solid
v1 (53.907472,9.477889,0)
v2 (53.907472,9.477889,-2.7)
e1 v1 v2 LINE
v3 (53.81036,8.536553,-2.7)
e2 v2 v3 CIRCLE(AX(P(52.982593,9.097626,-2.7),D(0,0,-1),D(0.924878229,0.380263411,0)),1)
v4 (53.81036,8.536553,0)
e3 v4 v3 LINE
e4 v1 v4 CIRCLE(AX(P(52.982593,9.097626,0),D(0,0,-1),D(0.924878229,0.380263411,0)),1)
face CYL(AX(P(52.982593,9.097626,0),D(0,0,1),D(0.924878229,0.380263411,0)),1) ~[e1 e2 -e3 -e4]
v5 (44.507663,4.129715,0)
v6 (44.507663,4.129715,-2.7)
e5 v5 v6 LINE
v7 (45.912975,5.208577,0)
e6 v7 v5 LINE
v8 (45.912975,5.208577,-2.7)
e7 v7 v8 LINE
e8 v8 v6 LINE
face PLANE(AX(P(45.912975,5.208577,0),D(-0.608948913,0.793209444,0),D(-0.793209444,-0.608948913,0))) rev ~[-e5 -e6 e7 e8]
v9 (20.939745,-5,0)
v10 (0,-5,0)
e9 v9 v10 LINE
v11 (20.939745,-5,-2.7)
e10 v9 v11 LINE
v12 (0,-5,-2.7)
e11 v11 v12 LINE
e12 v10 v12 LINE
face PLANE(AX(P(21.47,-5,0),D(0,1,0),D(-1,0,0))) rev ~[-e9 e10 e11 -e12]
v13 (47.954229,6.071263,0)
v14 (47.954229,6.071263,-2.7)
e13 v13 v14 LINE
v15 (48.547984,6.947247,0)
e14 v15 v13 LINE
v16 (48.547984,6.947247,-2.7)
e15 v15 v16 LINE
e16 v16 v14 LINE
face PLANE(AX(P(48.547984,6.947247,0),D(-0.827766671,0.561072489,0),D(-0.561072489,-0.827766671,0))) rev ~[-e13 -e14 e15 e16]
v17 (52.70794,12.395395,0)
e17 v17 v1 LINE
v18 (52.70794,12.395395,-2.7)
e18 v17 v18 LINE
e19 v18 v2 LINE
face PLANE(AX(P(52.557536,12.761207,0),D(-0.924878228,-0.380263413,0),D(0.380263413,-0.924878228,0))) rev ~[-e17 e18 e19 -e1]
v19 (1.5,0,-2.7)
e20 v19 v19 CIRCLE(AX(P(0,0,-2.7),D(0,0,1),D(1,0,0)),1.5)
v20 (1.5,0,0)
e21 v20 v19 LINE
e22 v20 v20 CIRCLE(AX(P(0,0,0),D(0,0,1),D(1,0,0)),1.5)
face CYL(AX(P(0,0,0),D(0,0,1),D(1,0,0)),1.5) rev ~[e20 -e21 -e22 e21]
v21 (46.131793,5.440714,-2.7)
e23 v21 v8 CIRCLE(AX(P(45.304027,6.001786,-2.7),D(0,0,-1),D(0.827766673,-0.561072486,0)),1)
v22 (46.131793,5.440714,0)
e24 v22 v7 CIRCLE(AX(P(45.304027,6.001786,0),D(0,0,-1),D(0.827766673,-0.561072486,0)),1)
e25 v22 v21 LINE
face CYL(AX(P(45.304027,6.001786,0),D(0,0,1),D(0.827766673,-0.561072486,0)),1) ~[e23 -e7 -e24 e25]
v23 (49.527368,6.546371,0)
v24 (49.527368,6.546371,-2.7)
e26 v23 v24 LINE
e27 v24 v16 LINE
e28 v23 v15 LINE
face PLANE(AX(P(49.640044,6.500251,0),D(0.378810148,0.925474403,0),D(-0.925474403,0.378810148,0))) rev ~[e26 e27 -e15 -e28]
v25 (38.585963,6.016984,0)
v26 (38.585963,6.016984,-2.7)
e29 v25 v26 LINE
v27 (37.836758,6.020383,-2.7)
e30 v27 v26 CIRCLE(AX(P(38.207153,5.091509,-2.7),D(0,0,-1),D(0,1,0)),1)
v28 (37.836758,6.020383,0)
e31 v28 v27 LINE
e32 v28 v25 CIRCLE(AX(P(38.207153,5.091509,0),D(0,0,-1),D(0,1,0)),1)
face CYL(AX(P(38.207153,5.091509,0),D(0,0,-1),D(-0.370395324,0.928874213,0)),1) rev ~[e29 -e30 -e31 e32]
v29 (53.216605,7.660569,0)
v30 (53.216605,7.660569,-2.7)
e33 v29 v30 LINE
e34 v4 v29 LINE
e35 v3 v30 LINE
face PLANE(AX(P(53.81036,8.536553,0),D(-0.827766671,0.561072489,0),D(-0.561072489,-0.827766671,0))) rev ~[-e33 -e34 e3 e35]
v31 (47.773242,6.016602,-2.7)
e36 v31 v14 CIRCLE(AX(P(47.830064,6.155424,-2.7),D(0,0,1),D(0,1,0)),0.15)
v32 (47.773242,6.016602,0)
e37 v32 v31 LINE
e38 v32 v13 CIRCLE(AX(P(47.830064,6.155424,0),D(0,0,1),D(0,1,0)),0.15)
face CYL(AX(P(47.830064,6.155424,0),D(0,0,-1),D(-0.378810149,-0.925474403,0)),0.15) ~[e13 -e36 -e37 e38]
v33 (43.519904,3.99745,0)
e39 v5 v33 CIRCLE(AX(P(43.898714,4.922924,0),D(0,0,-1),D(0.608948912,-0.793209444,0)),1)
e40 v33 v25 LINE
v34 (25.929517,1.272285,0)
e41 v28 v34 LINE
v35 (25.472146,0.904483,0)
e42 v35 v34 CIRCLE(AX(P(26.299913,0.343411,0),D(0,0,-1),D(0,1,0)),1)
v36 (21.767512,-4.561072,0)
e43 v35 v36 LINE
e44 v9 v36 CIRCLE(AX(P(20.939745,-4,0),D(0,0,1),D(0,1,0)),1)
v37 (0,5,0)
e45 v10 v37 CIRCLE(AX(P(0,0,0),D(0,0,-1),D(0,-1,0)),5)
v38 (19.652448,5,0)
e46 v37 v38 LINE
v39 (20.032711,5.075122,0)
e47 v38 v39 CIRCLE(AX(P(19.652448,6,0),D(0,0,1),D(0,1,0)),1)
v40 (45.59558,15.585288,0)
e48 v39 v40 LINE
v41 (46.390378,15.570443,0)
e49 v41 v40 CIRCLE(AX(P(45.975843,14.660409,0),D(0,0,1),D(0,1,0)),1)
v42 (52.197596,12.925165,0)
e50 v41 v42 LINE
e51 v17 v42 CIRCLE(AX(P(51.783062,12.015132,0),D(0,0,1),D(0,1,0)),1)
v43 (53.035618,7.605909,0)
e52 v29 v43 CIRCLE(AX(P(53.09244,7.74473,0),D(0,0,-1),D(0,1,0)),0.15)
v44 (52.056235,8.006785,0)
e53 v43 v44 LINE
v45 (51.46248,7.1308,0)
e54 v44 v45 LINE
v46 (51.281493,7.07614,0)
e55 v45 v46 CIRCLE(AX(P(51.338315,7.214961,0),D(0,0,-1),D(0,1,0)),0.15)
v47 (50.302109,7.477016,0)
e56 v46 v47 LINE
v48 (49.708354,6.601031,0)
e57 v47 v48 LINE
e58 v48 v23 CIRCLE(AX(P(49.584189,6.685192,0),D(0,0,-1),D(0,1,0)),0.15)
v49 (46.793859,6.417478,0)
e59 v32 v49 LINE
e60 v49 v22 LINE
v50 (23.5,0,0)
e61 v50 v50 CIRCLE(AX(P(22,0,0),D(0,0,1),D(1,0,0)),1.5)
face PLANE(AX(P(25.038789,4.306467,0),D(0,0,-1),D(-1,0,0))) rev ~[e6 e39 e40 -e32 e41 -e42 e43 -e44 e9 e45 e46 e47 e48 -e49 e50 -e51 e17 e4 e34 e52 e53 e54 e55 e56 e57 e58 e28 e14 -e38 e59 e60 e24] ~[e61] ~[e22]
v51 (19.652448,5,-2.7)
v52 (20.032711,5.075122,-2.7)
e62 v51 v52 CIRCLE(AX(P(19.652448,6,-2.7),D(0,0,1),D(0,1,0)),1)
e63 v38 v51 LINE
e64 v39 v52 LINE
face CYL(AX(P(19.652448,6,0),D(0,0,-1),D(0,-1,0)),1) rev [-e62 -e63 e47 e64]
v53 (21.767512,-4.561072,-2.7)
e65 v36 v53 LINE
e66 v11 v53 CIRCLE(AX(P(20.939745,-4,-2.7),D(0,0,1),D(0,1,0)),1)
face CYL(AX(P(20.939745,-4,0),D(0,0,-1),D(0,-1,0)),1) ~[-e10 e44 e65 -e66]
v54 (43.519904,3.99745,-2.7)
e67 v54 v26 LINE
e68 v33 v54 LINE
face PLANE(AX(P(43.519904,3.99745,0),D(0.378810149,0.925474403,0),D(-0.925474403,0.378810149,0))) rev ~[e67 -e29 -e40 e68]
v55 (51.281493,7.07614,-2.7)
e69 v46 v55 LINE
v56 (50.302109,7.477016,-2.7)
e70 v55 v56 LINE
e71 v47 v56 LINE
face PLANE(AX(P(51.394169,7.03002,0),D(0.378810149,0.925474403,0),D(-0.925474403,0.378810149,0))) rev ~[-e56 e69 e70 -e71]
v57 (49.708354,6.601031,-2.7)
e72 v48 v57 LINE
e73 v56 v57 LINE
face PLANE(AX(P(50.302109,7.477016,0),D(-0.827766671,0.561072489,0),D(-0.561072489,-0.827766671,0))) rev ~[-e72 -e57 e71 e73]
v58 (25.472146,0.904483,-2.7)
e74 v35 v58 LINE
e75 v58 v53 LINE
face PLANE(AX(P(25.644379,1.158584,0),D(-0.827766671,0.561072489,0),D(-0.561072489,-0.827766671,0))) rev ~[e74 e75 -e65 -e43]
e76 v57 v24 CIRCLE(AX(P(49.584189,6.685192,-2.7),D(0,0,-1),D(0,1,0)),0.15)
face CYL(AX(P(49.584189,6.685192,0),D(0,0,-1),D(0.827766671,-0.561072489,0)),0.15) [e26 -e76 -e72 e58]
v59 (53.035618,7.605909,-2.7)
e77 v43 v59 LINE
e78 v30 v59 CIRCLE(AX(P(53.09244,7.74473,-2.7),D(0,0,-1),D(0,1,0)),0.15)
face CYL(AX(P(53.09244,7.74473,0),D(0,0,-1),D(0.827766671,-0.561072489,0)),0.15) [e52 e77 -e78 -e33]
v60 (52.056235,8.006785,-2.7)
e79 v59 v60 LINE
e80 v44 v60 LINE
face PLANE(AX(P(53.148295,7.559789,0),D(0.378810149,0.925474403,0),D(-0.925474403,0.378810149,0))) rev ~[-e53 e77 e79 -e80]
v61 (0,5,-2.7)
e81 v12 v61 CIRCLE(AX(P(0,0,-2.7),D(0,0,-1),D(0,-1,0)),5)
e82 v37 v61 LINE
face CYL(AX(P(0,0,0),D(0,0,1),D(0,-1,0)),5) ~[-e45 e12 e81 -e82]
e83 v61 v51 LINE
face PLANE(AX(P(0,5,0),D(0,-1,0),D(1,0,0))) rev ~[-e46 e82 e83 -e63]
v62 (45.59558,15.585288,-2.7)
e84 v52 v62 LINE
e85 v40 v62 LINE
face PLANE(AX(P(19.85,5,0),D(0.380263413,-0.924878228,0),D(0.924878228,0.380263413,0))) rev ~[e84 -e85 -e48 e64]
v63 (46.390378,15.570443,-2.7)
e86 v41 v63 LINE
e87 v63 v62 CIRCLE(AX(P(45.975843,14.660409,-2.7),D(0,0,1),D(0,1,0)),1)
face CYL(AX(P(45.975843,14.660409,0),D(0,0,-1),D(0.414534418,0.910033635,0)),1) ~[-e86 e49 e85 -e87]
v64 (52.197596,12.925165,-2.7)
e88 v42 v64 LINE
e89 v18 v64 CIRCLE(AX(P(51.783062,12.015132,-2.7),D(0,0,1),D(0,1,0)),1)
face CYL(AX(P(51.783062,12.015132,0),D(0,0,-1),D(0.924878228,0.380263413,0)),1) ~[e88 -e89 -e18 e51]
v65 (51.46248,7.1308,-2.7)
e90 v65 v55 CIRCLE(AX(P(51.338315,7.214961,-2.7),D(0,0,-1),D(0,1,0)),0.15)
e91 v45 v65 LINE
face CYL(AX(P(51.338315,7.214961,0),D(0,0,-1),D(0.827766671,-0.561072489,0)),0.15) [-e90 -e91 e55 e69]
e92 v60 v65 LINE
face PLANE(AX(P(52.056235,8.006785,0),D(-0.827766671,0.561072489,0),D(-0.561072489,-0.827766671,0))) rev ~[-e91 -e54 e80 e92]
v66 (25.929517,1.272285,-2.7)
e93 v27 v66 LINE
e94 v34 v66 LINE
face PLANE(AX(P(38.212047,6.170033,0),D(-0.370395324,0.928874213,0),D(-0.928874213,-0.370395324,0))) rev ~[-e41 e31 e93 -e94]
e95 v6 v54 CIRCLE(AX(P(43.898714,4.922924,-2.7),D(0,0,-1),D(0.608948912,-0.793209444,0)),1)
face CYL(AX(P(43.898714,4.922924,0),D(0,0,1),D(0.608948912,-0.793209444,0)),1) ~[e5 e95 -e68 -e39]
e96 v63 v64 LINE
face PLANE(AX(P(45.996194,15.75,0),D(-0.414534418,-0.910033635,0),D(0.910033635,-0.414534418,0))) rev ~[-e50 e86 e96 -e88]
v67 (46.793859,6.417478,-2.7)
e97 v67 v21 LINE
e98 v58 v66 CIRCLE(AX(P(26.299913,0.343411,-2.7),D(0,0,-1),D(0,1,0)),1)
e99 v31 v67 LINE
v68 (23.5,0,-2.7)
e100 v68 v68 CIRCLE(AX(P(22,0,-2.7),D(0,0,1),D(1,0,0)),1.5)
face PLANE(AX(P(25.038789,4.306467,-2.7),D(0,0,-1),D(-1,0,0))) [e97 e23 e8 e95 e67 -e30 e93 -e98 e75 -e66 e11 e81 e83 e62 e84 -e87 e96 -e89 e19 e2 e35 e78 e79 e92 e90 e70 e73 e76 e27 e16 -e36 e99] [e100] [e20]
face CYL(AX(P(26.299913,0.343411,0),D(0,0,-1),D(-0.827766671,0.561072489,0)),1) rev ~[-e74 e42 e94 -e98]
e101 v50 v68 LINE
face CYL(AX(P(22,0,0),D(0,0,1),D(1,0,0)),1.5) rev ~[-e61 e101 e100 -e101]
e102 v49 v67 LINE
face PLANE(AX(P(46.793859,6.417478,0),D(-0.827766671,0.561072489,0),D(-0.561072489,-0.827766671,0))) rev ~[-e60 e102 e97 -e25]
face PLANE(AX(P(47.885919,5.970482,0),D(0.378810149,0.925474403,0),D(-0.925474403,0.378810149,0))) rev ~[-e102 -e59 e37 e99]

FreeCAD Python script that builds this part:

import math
import FreeCAD as App
import Part
import Sketcher

V = App.Vector
Q = App.Units.Quantity


def edges_at(feature, points):
    """Names of the edges that pass closest to the given points."""
    edges = feature.Shape.Edges
    near = lambda p: min(range(len(edges)), key=lambda i: edges[i].distToShape(Part.Vertex(*p))[0])
    return sorted({f"Edge{near(p) + 1}" for p in points})

doc = App.newDocument("Part")
params = doc.addObject("Spreadsheet::Sheet", "Params")
for row, (alias, value) in enumerate([
    ("sketch1_diameter", "3 mm"),
    ("sketch1_radius", "5 mm"),
    ("sketch1_radius2", "1 mm"),
    ("sketch1_width", "19.85 mm"),
    ("sketch1_width2", "21.47 mm"),
    ("pad1_length", "2.7 mm"),
    ("fillet_radius", "0.15 mm"),
    ("fillet2_radius", "1 mm"),
    ("fillet3_radius", "1 mm"),
    ("fillet4_radius", "1 mm"),
], start=1):
    params.set(f"A{row}", alias)
    params.set(f"B{row}", "=" + value)
    params.setAlias(f"B{row}", alias)

body = doc.addObject("PartDesign::Body", "Body")

# Sketch on XY plane
sketch1 = doc.addObject("Sketcher::SketchObject", "Sketch")
body.addObject(sketch1)
sketch1.AttachmentSupport = (doc.XY_Plane, [""])
sketch1.MapMode = "FlatFace"
sketch1.addGeometry([
    Part.LineSegment(V(19.85, 5, 0), V(0, 5, 0)),  # 0
    Part.ArcOfCircle(Part.Circle(V(0, 0, 0), V(0, 0, 1), 5), math.radians(90), math.radians(270)),  # 1
    Part.LineSegment(V(0, -5, 0), V(21.47, -5, 0)),  # 2
    Part.LineSegment(V(21.47, -5, 0), V(25.64, 1.16, 0)),  # 3
    Part.LineSegment(V(25.64, 1.16, 0), V(38.21, 6.17, 0)),  # 4
    Part.LineSegment(V(38.21, 6.17, 0), V(43.52, 4, 0)),  # 5
    Part.ArcOfCircle(Part.Circle(V(43.9, 4.92, 0), V(0, 0, 1), 1), math.radians(-112), math.radians(-52)),  # 6
    Part.LineSegment(V(44.51, 4.13, 0), V(45.91, 5.21, 0)),  # 7
    Part.ArcOfCircle(Part.Circle(V(45.3, 6, 0), V(0, 0, 1), 1), math.radians(-52.49), math.radians(-34.13)),  # 8
    Part.LineSegment(V(46.13, 5.44, 0), V(46.79, 6.42, 0)),  # 9
    Part.LineSegment(V(46.79, 6.42, 0), V(47.89, 5.97, 0)),  # 10
    Part.LineSegment(V(47.89, 5.97, 0), V(48.55, 6.95, 0)),  # 11
    Part.LineSegment(V(48.55, 6.95, 0), V(49.64, 6.5, 0)),  # 12
    Part.LineSegment(V(49.64, 6.5, 0), V(50.3, 7.48, 0)),  # 13
    Part.LineSegment(V(50.3, 7.48, 0), V(51.39, 7.03, 0)),  # 14
    Part.LineSegment(V(51.39, 7.03, 0), V(52.06, 8.01, 0)),  # 15
    Part.LineSegment(V(52.06, 8.01, 0), V(53.15, 7.56, 0)),  # 16
    Part.LineSegment(V(53.15, 7.56, 0), V(53.81, 8.54, 0)),  # 17
    Part.ArcOfCircle(Part.Circle(V(52.98, 9.1, 0), V(0, 0, 1), 1), math.radians(-34), math.radians(22)),  # 18
    Part.LineSegment(V(53.91, 9.48, 0), V(52.56, 12.76, 0)),  # 19
    Part.LineSegment(V(52.56, 12.76, 0), V(46, 15.75, 0)),  # 20
    Part.LineSegment(V(46, 15.75, 0), V(19.85, 5, 0)),  # 21
    Part.Circle(V(22, 0, 0), V(0, 0, 1), 1.5),  # 22
    Part.Circle(V(0, 0, 0), V(0, 0, 1), 1.5),  # 23
], False)
sketch1.addConstraint([
    Sketcher.Constraint("Tangent", 0, 2, 1, 1),
    Sketcher.Constraint("Tangent", 1, 2, 2, 1),
    Sketcher.Constraint("Coincident", 2, 2, 3, 1),
    Sketcher.Constraint("Coincident", 3, 2, 4, 1),
    Sketcher.Constraint("Coincident", 4, 2, 5, 1),
    Sketcher.Constraint("Tangent", 5, 2, 6, 1),
    Sketcher.Constraint("Tangent", 6, 2, 7, 1),
    Sketcher.Constraint("Tangent", 7, 2, 8, 1),
    Sketcher.Constraint("Tangent", 8, 2, 9, 1),
    Sketcher.Constraint("Coincident", 9, 2, 10, 1),
    Sketcher.Constraint("Coincident", 10, 2, 11, 1),
    Sketcher.Constraint("Coincident", 11, 2, 12, 1),
    Sketcher.Constraint("Coincident", 12, 2, 13, 1),
    Sketcher.Constraint("Coincident", 13, 2, 14, 1),
    Sketcher.Constraint("Coincident", 14, 2, 15, 1),
    Sketcher.Constraint("Coincident", 15, 2, 16, 1),
    Sketcher.Constraint("Coincident", 16, 2, 17, 1),
    Sketcher.Constraint("Tangent", 17, 2, 18, 1),
    Sketcher.Constraint("Tangent", 18, 2, 19, 1),
    Sketcher.Constraint("Coincident", 19, 2, 20, 1),
    Sketcher.Constraint("Coincident", 20, 2, 21, 1),
    Sketcher.Constraint("Coincident", 21, 2, 0, 1),
    Sketcher.Constraint("Horizontal", 0),
    Sketcher.Constraint("Horizontal", 2),
    Sketcher.Constraint("Coincident", 1, 3, -1, 1),
    Sketcher.Constraint("Coincident", 23, 3, -1, 1),
    Sketcher.Constraint("Equal", 6, 8),
    Sketcher.Constraint("Equal", 8, 18),
    Sketcher.Constraint("Equal", 22, 23),
    Sketcher.Constraint("PointOnObject", 22, 3, -1),
    Sketcher.Constraint("Parallel", 3, 9),
    Sketcher.Constraint("Parallel", 5, 10),
    Sketcher.Constraint("Parallel", 9, 11),
    Sketcher.Constraint("Parallel", 10, 12),
    Sketcher.Constraint("Parallel", 11, 13),
    Sketcher.Constraint("Parallel", 12, 14),
    Sketcher.Constraint("Parallel", 13, 15),
    Sketcher.Constraint("Parallel", 14, 16),
    Sketcher.Constraint("Parallel", 15, 17),
    Sketcher.Constraint("Perpendicular", 19, 21),
    Sketcher.Constraint("Equal", 9, 10),
    Sketcher.Constraint("Equal", 10, 11),
    Sketcher.Constraint("Equal", 11, 12),
    Sketcher.Constraint("Equal", 12, 13),
    Sketcher.Constraint("Equal", 13, 14),
    Sketcher.Constraint("Equal", 14, 15),
    Sketcher.Constraint("Equal", 15, 16),
    Sketcher.Constraint("Equal", 16, 17),
    Sketcher.Constraint("Diameter", 22, Q("3 mm")),
    Sketcher.Constraint("Radius", 1, Q("5 mm")),
    Sketcher.Constraint("Radius", 6, Q("1 mm")),
    Sketcher.Constraint("DistanceX", -1, 1, 22, 3, Q("22 mm")),
    Sketcher.Constraint("DistanceX", 0, 2, 0, 1, Q("19.85 mm")),
    Sketcher.Constraint("DistanceX", 2, 1, 2, 2, Q("21.47 mm")),
    Sketcher.Constraint("Angle", 3, Q("55.87 deg")),
    Sketcher.Constraint("Angle", 4, Q("21.74 deg")),
    Sketcher.Constraint("Angle", 5, Q("-22.26 deg")),
    Sketcher.Constraint("Angle", 19, Q("112.35 deg")),
    Sketcher.Constraint("Angle", 20, Q("155.51 deg")),
    Sketcher.Constraint("Distance", 3, Q("7.44 mm")),
    Sketcher.Constraint("Distance", 4, Q("13.53 mm")),
    Sketcher.Constraint("Distance", 9, Q("1.18 mm")),
    Sketcher.Constraint("Distance", 19, Q("3.55 mm")),
    Sketcher.Constraint("Distance", 20, Q("7.21 mm")),
    Sketcher.Constraint("DistanceY", -1, 1, 20, 2, Q("15.75 mm")),
    Sketcher.Constraint("DistanceY", 6, 2, 8, 2, Q("1.310999 mm")),
])
sketch1.setExpression("Constraints[48]", "Params.sketch1_diameter")
sketch1.setExpression("Constraints[49]", "Params.sketch1_radius")
sketch1.setExpression("Constraints[50]", "Params.sketch1_radius2")
sketch1.setExpression("Constraints[52]", "Params.sketch1_width")
sketch1.setExpression("Constraints[53]", "Params.sketch1_width2")
pad1 = doc.addObject("PartDesign::Pad", "Pad")
body.addObject(pad1)
pad1.Profile = sketch1
pad1.setExpression("Length", "Params.pad1_length")
pad1.Reversed = True
doc.recompute()

fillet = doc.addObject("PartDesign::Fillet", "Fillet")
body.addObject(fillet)
fillet.Base = (pad1, edges_at(pad1, [
    (53.148, 7.56, -1.35),
    (51.394, 7.03, -1.35),
    (49.64, 6.5, -1.35),
    (47.886, 5.97, -1.35),
]))
fillet.setExpression("Radius", "Params.fillet_radius")
doc.recompute()

fillet2 = doc.addObject("PartDesign::Fillet", "Fillet001")
body.addObject(fillet2)
fillet2.Base = (fillet, edges_at(fillet, [(21.47, -5, -1.35), (45.996, 15.75, -1.35), (52.558, 12.761, -1.35)]))
fillet2.setExpression("Radius", "Params.fillet2_radius")
doc.recompute()

fillet3 = doc.addObject("PartDesign::Fillet", "Fillet002")
body.addObject(fillet3)
fillet3.Base = (fillet2, edges_at(fillet2, [(38.212, 6.17, -1.35), (25.644, 1.159, -1.35)]))
fillet3.setExpression("Radius", "Params.fillet3_radius")
doc.recompute()

fillet4 = doc.addObject("PartDesign::Fillet", "Fillet003")
body.addObject(fillet4)
fillet4.Base = (fillet3, edges_at(fillet3, [(19.85, 5, -1.35)]))
fillet4.setExpression("Radius", "Params.fillet4_radius")

doc.recompute()
